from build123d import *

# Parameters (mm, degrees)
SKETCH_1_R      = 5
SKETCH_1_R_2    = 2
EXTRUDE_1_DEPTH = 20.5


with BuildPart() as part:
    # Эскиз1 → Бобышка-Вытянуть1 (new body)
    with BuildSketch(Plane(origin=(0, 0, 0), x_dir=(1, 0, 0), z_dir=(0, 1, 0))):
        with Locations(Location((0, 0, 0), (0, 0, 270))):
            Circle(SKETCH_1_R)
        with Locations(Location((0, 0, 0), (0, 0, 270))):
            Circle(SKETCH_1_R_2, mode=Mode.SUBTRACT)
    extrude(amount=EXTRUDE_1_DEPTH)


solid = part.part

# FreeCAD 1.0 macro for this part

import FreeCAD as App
import Part
import Sketcher

V = App.Vector

doc = App.newDocument("Part")
body = doc.addObject("PartDesign::Body", "Body")

# Sketch on XZ plane
sketch1 = doc.addObject("Sketcher::SketchObject", "Sketch")
body.addObject(sketch1)
sketch1.AttachmentSupport = (doc.XZ_Plane, [""])
sketch1.MapMode = "FlatFace"
sketch1.addGeometry([
    Part.Circle(V(0, 0, 0), V(0, 0, 1), 5),
    Part.Circle(V(0, 0, 0), V(0, 0, 1), 2),
], False)
sketch1.addConstraint([
    Sketcher.Constraint("Coincident", 0, 3, -1, 1),
    Sketcher.Constraint("Coincident", 1, 3, -1, 1),
    Sketcher.Constraint("Diameter", 0, 10.0),
    Sketcher.Constraint("Diameter", 1, 4.0),
])
pad1 = doc.addObject("PartDesign::Pad", "Pad")
body.addObject(pad1)
pad1.Profile = sketch1
pad1.Length = 20.5
pad1.Reversed = True

doc.recompute()
